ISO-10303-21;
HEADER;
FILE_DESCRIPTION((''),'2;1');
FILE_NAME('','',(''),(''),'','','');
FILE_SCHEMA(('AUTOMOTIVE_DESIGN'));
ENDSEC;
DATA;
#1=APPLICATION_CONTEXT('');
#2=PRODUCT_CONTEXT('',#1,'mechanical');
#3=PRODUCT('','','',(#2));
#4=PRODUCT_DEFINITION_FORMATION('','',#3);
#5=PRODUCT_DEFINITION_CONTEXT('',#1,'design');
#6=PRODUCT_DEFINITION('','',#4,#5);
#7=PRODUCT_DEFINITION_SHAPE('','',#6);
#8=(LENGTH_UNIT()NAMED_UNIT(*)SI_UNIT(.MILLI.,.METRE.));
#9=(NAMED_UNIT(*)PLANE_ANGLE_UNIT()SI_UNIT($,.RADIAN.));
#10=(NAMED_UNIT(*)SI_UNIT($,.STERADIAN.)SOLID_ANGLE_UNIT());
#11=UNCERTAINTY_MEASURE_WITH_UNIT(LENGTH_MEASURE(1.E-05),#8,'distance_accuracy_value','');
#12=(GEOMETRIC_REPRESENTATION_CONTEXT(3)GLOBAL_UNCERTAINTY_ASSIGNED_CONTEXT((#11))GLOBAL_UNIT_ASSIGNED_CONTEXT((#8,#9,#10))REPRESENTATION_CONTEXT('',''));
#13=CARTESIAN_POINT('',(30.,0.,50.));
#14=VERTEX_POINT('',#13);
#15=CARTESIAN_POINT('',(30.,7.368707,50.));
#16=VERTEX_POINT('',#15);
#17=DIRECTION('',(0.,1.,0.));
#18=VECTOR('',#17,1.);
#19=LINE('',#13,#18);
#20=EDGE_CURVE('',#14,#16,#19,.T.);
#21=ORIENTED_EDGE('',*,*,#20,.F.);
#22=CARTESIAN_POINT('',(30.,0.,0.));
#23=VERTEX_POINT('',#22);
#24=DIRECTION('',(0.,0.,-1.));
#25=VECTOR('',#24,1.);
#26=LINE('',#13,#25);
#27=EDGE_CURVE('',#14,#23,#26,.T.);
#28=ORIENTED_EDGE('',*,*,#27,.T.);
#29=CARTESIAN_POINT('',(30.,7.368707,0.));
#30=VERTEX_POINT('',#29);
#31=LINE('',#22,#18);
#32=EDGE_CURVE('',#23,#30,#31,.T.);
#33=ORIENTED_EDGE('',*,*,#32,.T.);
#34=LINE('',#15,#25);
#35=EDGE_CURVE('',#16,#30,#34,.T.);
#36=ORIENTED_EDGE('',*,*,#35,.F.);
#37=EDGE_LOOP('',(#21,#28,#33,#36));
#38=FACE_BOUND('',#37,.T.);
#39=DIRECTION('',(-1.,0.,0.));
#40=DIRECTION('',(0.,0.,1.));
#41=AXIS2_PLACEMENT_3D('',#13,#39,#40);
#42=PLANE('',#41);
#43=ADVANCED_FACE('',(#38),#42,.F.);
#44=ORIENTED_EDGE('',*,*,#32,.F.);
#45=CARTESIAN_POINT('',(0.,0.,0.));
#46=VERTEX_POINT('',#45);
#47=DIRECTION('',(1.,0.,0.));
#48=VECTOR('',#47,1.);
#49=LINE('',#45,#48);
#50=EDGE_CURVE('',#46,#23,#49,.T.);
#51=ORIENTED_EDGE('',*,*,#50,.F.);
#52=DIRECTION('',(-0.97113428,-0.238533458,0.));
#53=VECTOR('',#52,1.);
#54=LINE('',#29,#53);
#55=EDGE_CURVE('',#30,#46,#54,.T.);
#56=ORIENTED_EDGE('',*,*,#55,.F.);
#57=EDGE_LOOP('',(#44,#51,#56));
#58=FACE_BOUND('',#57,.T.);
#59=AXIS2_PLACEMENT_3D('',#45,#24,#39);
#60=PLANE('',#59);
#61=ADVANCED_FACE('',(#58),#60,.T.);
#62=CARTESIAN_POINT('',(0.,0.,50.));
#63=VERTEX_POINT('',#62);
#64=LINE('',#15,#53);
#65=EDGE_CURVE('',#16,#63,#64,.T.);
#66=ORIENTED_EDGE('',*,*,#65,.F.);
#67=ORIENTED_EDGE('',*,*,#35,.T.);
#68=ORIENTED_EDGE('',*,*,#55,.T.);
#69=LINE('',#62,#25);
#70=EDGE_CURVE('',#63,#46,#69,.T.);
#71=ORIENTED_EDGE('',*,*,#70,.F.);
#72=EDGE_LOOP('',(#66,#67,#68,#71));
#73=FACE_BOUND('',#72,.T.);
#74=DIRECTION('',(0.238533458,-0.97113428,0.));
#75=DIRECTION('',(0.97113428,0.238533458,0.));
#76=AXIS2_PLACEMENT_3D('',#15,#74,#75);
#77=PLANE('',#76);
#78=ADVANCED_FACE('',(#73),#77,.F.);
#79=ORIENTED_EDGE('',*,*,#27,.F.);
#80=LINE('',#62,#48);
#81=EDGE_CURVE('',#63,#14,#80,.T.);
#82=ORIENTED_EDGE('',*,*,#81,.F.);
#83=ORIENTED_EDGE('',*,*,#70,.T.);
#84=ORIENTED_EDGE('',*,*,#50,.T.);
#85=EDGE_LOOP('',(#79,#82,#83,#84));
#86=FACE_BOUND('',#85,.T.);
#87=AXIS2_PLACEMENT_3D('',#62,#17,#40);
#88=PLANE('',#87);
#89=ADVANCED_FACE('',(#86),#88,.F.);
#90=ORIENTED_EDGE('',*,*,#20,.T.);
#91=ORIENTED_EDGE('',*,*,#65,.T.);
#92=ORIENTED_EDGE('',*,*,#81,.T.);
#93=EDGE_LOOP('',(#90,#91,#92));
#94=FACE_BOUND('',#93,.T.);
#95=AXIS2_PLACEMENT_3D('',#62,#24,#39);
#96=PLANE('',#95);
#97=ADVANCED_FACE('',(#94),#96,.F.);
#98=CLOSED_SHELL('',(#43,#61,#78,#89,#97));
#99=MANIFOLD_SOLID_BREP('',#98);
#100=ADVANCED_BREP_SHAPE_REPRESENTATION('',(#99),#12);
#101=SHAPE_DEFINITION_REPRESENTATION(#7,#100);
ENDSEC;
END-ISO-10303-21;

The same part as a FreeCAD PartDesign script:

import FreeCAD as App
import Part
import Sketcher
from FreeCAD import Vector
Q = App.Units.Quantity


def add_polygon(sketch, points):
    """Adds a closed chain of lines whose ends are joined by coincident constraints."""
    first, n = sketch.GeometryCount, len(points)
    for a, b in zip(points, points[1:] + points[:1]):
        sketch.addGeometry(Part.LineSegment(App.Vector(*a, 0), App.Vector(*b, 0)), False)
    for i in range(n):
        sketch.addConstraint(Sketcher.Constraint("Coincident", first + i, 2, first + (i + 1) % n, 1))

doc = App.newDocument("Part")
body = doc.addObject("PartDesign::Body", "Body")

# Sketch on XY plane
sketch1 = body.newObject("Sketcher::SketchObject", "Sketch")
sketch1.AttachmentSupport = (doc.getObject("XY_Plane"), [""])
sketch1.MapMode = "FlatFace"
add_polygon(sketch1, [(0, 0), (30, 0), (30, 7)])  # lines 0-2
sketch1.addConstraint([
    Sketcher.Constraint("Horizontal", 0),
    Sketcher.Constraint("Vertical", 1),
    Sketcher.Constraint("Coincident", 2, 2, -1, 1),
    Sketcher.Constraint("DistanceX", 0, 1, 0, 2, Q("30 mm")),
    Sketcher.Constraint("Angle", 2, Q("-166.2 deg")),
])
pad1 = body.newObject("PartDesign::Pad", "Pad")
pad1.Profile = sketch1
pad1.Length = 50

doc.recompute()
